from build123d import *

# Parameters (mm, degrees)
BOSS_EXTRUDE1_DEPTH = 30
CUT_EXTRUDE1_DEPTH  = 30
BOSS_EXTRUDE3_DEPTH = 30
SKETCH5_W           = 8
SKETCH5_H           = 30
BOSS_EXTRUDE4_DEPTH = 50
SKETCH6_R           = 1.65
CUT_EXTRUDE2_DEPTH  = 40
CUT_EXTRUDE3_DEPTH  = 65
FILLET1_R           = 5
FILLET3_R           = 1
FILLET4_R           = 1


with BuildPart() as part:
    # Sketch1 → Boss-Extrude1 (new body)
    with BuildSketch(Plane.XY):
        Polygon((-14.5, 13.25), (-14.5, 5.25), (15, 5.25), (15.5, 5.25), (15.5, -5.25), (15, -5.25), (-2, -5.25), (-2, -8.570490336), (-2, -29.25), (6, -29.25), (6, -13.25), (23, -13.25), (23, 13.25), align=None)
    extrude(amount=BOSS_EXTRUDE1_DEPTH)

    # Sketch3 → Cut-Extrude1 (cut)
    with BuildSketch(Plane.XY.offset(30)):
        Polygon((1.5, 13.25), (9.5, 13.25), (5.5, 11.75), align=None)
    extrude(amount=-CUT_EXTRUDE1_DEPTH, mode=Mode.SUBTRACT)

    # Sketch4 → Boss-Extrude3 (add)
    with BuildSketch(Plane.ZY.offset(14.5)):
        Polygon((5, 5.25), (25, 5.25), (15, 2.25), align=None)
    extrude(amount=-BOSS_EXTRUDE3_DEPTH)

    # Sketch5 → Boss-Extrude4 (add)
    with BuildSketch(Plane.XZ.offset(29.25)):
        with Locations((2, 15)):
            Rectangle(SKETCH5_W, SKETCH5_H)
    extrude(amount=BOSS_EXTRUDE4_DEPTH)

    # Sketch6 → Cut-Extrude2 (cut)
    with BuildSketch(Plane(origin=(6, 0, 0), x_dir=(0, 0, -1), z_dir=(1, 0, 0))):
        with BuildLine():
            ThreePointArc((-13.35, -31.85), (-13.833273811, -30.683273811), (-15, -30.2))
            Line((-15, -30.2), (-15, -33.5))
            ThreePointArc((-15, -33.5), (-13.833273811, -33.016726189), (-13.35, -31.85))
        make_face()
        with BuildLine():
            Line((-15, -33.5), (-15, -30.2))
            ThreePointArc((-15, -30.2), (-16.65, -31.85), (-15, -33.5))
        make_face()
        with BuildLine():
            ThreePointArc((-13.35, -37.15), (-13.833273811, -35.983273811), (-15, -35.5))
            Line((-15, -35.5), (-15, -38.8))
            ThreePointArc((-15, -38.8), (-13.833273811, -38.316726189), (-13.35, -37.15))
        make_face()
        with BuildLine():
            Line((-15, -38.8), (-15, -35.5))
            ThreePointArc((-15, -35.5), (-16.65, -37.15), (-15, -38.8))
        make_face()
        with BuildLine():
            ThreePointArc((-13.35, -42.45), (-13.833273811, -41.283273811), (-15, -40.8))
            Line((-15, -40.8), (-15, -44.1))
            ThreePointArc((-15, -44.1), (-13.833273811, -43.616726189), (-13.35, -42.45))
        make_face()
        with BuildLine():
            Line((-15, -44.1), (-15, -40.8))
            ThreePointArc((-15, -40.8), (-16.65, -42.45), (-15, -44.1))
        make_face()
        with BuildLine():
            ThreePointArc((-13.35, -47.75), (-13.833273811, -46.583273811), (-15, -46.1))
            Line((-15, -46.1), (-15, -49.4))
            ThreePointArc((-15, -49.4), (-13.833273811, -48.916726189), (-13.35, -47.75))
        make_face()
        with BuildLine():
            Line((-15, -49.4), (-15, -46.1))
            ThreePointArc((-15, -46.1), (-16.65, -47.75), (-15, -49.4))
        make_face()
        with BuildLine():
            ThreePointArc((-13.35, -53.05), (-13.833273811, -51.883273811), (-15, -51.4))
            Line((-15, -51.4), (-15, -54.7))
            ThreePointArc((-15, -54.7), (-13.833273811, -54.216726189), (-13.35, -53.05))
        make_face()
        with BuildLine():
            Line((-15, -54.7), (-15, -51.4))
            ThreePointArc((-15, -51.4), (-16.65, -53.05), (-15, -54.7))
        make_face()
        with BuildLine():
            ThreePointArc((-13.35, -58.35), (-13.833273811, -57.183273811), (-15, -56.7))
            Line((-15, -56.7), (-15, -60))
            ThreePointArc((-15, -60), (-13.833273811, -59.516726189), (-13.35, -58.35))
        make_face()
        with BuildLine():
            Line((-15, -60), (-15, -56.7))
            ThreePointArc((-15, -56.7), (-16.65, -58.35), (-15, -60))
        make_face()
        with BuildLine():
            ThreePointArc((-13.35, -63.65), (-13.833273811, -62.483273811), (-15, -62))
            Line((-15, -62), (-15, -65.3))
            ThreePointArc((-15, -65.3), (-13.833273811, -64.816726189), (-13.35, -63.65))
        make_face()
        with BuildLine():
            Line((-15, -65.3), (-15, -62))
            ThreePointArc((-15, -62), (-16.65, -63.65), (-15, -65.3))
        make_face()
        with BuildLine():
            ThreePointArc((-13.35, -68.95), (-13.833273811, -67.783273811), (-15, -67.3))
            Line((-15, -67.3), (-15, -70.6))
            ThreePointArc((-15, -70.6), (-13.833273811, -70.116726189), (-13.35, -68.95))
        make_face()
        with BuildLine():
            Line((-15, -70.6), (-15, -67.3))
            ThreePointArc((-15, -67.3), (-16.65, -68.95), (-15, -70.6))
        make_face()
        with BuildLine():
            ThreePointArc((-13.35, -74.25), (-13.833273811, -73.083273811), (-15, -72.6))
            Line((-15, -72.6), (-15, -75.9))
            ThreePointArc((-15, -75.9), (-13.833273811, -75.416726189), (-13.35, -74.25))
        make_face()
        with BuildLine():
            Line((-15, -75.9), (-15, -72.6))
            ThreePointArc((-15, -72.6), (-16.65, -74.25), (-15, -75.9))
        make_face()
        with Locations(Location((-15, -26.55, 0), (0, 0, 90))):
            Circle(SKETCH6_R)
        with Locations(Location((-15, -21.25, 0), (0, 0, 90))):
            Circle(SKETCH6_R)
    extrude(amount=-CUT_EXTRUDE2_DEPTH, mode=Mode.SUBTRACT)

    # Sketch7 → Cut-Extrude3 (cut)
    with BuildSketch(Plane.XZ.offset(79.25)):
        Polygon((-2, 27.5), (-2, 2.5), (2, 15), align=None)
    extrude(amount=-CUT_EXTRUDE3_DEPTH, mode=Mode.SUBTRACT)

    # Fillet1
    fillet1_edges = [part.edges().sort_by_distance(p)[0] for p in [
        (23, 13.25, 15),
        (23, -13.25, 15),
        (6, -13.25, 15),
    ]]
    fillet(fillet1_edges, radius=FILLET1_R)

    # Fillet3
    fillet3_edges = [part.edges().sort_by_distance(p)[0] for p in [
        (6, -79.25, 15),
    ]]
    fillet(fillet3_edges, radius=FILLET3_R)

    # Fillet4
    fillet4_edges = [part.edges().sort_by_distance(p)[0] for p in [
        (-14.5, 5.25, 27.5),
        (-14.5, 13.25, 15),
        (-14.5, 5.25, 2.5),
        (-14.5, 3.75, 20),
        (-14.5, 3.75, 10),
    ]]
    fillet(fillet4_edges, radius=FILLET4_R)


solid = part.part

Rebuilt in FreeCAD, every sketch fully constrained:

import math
import FreeCAD as App
import Part
import Sketcher
from FreeCAD import Vector


def edges_at(feature, points):
    """Names of the edges that pass closest to the given points."""
    edges = feature.Shape.Edges
    near = lambda p: min(range(len(edges)), key=lambda i: edges[i].distToShape(Part.Vertex(*p))[0])
    return sorted({f"Edge{near(p) + 1}" for p in points})


def add_polygon(sketch, points):
    """Adds a closed chain of lines whose ends are joined by coincident constraints."""
    first, n = sketch.GeometryCount, len(points)
    for a, b in zip(points, points[1:] + points[:1]):
        sketch.addGeometry(Part.LineSegment(App.Vector(*a, 0), App.Vector(*b, 0)), False)
    for i in range(n):
        sketch.addConstraint(Sketcher.Constraint("Coincident", first + i, 2, first + (i + 1) % n, 1))

doc = App.newDocument("Part")
body = doc.addObject("PartDesign::Body", "Body")

# Sketch on XY plane
sketch1 = doc.addObject("Sketcher::SketchObject", "Sketch")
body.addObject(sketch1)
sketch1.AttachmentSupport = (doc.XY_Plane, [""])
sketch1.MapMode = "FlatFace"
add_polygon(sketch1, [(-14, 13), (-14, 5), (16, 5), (16, -5), (-2, -5), (-2, -29), (6, -29), (6, -13), (23, -13), (23, 13)])  # lines 0-9
sketch1.addConstraint([
    Sketcher.Constraint("Vertical", 0),
    Sketcher.Constraint("Horizontal", 1),
    Sketcher.Constraint("Vertical", 2),
    Sketcher.Constraint("Horizontal", 3),
    Sketcher.Constraint("Vertical", 4),
    Sketcher.Constraint("Horizontal", 5),
    Sketcher.Constraint("Vertical", 6),
    Sketcher.Constraint("Horizontal", 7),
    Sketcher.Constraint("Vertical", 8),
    Sketcher.Constraint("Horizontal", 9),
    Sketcher.Constraint("Equal", 5, 0),
    Sketcher.Constraint("DistanceX", 1, 1, 1, 2, 30.0),
    Sketcher.Constraint("DistanceX", 5, 1, 5, 2, 8.0),
    Sketcher.Constraint("DistanceX", 7, 1, 7, 2, 17.0),
    Sketcher.Constraint("DistanceY", 4, 2, 4, 1, 24.0),
    Sketcher.Constraint("DistanceY", 6, 1, 6, 2, 16.0),
    Sketcher.Constraint("DistanceX", 3, 2, 3, 1, 17.5),
    Sketcher.Constraint("DistanceY", 2, 2, 2, 1, 10.5),
    Sketcher.Constraint("DistanceX", 3, 2, -1, 1, 2.0),
    Sketcher.Constraint("DistanceY", -1, 1, 0, 2, 5.25),
])
pad1 = doc.addObject("PartDesign::Pad", "Pad")
body.addObject(pad1)
pad1.Profile = sketch1
pad1.Length = 30

# Sketch on XY plane
sketch2 = doc.addObject("Sketcher::SketchObject", "Sketch001")
body.addObject(sketch2)
sketch2.AttachmentSupport = (doc.XY_Plane, [""])
sketch2.MapMode = "FlatFace"
sketch2.AttachmentOffset = App.Placement(Vector(0, 0, 30), App.Rotation())
add_polygon(sketch2, [(9.5, 13.2), (1.5, 13.2), (5.5, 11.8)])  # lines 0-2
sketch2.addConstraint([
    Sketcher.Constraint("Horizontal", 0),
    Sketcher.Constraint("Equal", 1, 2),
    Sketcher.Constraint("DistanceX", 0, 2, 0, 1, 8.0),
    Sketcher.Constraint("DistanceX", -1, 1, 0, 2, 1.5),
    Sketcher.Constraint("DistanceY", 1, 2, 0, 2, 1.5),
    Sketcher.Constraint("DistanceY", -1, 1, 0, 2, 13.25),
])
pocket1 = doc.addObject("PartDesign::Pocket", "Pocket")
body.addObject(pocket1)
pocket1.Profile = sketch2
pocket1.Length = 30

# Sketch on YZ plane
sketch3 = doc.addObject("Sketcher::SketchObject", "Sketch002")
body.addObject(sketch3)
sketch3.AttachmentSupport = (doc.YZ_Plane, [""])
sketch3.MapMode = "FlatFace"
sketch3.AttachmentOffset = App.Placement(Vector(0, 0, -14.5), App.Rotation())
add_polygon(sketch3, [(5, 25), (5, 5), (2, 15)])  # lines 0-2
sketch3.addConstraint([
    Sketcher.Constraint("Vertical", 0),
    Sketcher.Constraint("Equal", 1, 2),
    Sketcher.Constraint("DistanceY", 0, 2, 0, 1, 20.0),
    Sketcher.Constraint("DistanceY", -1, 1, 0, 2, 5.0),
    Sketcher.Constraint("DistanceX", 1, 2, 0, 2, 3.0),
    Sketcher.Constraint("DistanceX", -1, 1, 0, 2, 5.25),
])
pad2 = doc.addObject("PartDesign::Pad", "Pad001")
body.addObject(pad2)
pad2.Profile = sketch3
pad2.Length = 30

# Sketch on XZ plane
sketch4 = doc.addObject("Sketcher::SketchObject", "Sketch003")
body.addObject(sketch4)
sketch4.AttachmentSupport = (doc.XZ_Plane, [""])
sketch4.MapMode = "FlatFace"
sketch4.AttachmentOffset = App.Placement(Vector(0, 0, 29.25), App.Rotation())
add_polygon(sketch4, [(-2, 30), (-2, 0), (6, 0), (6, 30)])  # lines 0-3
sketch4.addConstraint([
    Sketcher.Constraint("Vertical", 0),
    Sketcher.Constraint("Horizontal", 1),
    Sketcher.Constraint("Vertical", 2),
    Sketcher.Constraint("Horizontal", 3),
    Sketcher.Constraint("PointOnObject", 0, 2, -1),
    Sketcher.Constraint("DistanceX", 1, 1, 1, 2, 8.0),
    Sketcher.Constraint("DistanceY", 0, 2, 0, 1, 30.0),
    Sketcher.Constraint("DistanceX", 0, 2, -1, 1, 2.0),
])
pad3 = doc.addObject("PartDesign::Pad", "Pad002")
body.addObject(pad3)
pad3.Profile = sketch4
pad3.Length = 50

# Sketch on YZ plane
sketch5 = doc.addObject("Sketcher::SketchObject", "Sketch004")
body.addObject(sketch5)
sketch5.AttachmentSupport = (doc.YZ_Plane, [""])
sketch5.MapMode = "FlatFace"
sketch5.AttachmentOffset = App.Placement(Vector(0, 0, 6), App.Rotation())
sketch5.addGeometry([
    Part.ArcOfCircle(Part.Circle(Vector(-31.9, 15, 0), Vector(0, 0, 1), 1.6), math.radians(-90), math.radians(0)),  # 0
    Part.ArcOfCircle(Part.Circle(Vector(-31.9, 15, 0), Vector(0, 0, 1), 1.6), math.radians(0), math.radians(180)),  # 1
    Part.ArcOfCircle(Part.Circle(Vector(-31.9, 15, 0), Vector(0, 0, 1), 1.6), math.radians(180), math.radians(270)),  # 2
    Part.ArcOfCircle(Part.Circle(Vector(-37.1, 15, 0), Vector(0, 0, 1), 1.6), math.radians(-90), math.radians(0)),  # 3
    Part.ArcOfCircle(Part.Circle(Vector(-37.1, 15, 0), Vector(0, 0, 1), 1.6), math.radians(0), math.radians(180)),  # 4
    Part.ArcOfCircle(Part.Circle(Vector(-37.1, 15, 0), Vector(0, 0, 1), 1.6), math.radians(180), math.radians(270)),  # 5
    Part.ArcOfCircle(Part.Circle(Vector(-42.5, 15, 0), Vector(0, 0, 1), 1.6), math.radians(-90), math.radians(0)),  # 6
    Part.ArcOfCircle(Part.Circle(Vector(-42.5, 15, 0), Vector(0, 0, 1), 1.6), math.radians(0), math.radians(180)),  # 7
    Part.ArcOfCircle(Part.Circle(Vector(-42.5, 15, 0), Vector(0, 0, 1), 1.6), math.radians(180), math.radians(270)),  # 8
    Part.ArcOfCircle(Part.Circle(Vector(-47.8, 15, 0), Vector(0, 0, 1), 1.6), math.radians(-90), math.radians(0)),  # 9
    Part.ArcOfCircle(Part.Circle(Vector(-47.8, 15, 0), Vector(0, 0, 1), 1.6), math.radians(0), math.radians(180)),  # 10
    Part.ArcOfCircle(Part.Circle(Vector(-47.8, 15, 0), Vector(0, 0, 1), 1.6), math.radians(180), math.radians(270)),  # 11
    Part.ArcOfCircle(Part.Circle(Vector(-53, 15, 0), Vector(0, 0, 1), 1.6), math.radians(-90), math.radians(0)),  # 12
    Part.ArcOfCircle(Part.Circle(Vector(-53, 15, 0), Vector(0, 0, 1), 1.6), math.radians(0), math.radians(180)),  # 13
    Part.ArcOfCircle(Part.Circle(Vector(-53, 15, 0), Vector(0, 0, 1), 1.6), math.radians(180), math.radians(270)),  # 14
    Part.ArcOfCircle(Part.Circle(Vector(-58.4, 15, 0), Vector(0, 0, 1), 1.6), math.radians(-90), math.radians(0)),  # 15
    Part.ArcOfCircle(Part.Circle(Vector(-58.4, 15, 0), Vector(0, 0, 1), 1.6), math.radians(0), math.radians(180)),  # 16
    Part.ArcOfCircle(Part.Circle(Vector(-58.4, 15, 0), Vector(0, 0, 1), 1.6), math.radians(180), math.radians(270)),  # 17
    Part.ArcOfCircle(Part.Circle(Vector(-63.6, 15, 0), Vector(0, 0, 1), 1.6), math.radians(-90), math.radians(0)),  # 18
    Part.ArcOfCircle(Part.Circle(Vector(-63.6, 15, 0), Vector(0, 0, 1), 1.6), math.radians(0), math.radians(180)),  # 19
    Part.ArcOfCircle(Part.Circle(Vector(-63.6, 15, 0), Vector(0, 0, 1), 1.6), math.radians(180), math.radians(270)),  # 20
    Part.ArcOfCircle(Part.Circle(Vector(-69, 15, 0), Vector(0, 0, 1), 1.6), math.radians(-90), math.radians(0)),  # 21
    Part.ArcOfCircle(Part.Circle(Vector(-69, 15, 0), Vector(0, 0, 1), 1.6), math.radians(0), math.radians(180)),  # 22
    Part.ArcOfCircle(Part.Circle(Vector(-69, 15, 0), Vector(0, 0, 1), 1.6), math.radians(180), math.radians(270)),  # 23
    Part.ArcOfCircle(Part.Circle(Vector(-74.2, 15, 0), Vector(0, 0, 1), 1.6), math.radians(-90), math.radians(0)),  # 24
    Part.ArcOfCircle(Part.Circle(Vector(-74.2, 15, 0), Vector(0, 0, 1), 1.6), math.radians(0), math.radians(180)),  # 25
    Part.ArcOfCircle(Part.Circle(Vector(-74.2, 15, 0), Vector(0, 0, 1), 1.6), math.radians(180), math.radians(270)),  # 26
    Part.Circle(Vector(-26.6, 15, 0), Vector(0, 0, 1), 1.6),  # 27
    Part.Circle(Vector(-21.2, 15, 0), Vector(0, 0, 1), 1.6),  # 28
], False)
sketch5.addConstraint([
    Sketcher.Constraint("Tangent", 0, 2, 1, 1),
    Sketcher.Constraint("Tangent", 1, 2, 2, 1),
    Sketcher.Constraint("Tangent", 2, 2, 0, 1),
    Sketcher.Constraint("Tangent", 3, 2, 4, 1),
    Sketcher.Constraint("Tangent", 4, 2, 5, 1),
    Sketcher.Constraint("Tangent", 5, 2, 3, 1),
    Sketcher.Constraint("Tangent", 6, 2, 7, 1),
    Sketcher.Constraint("Tangent", 7, 2, 8, 1),
    Sketcher.Constraint("Tangent", 8, 2, 6, 1),
    Sketcher.Constraint("Tangent", 9, 2, 10, 1),
    Sketcher.Constraint("Tangent", 10, 2, 11, 1),
    Sketcher.Constraint("Tangent", 11, 2, 9, 1),
    Sketcher.Constraint("Tangent", 12, 2, 13, 1),
    Sketcher.Constraint("Tangent", 13, 2, 14, 1),
    Sketcher.Constraint("Tangent", 14, 2, 12, 1),
    Sketcher.Constraint("Tangent", 15, 2, 16, 1),
    Sketcher.Constraint("Tangent", 16, 2, 17, 1),
    Sketcher.Constraint("Tangent", 17, 2, 15, 1),
    Sketcher.Constraint("Tangent", 18, 2, 19, 1),
    Sketcher.Constraint("Tangent", 19, 2, 20, 1),
    Sketcher.Constraint("Tangent", 20, 2, 18, 1),
    Sketcher.Constraint("Tangent", 21, 2, 22, 1),
    Sketcher.Constraint("Tangent", 22, 2, 23, 1),
    Sketcher.Constraint("Tangent", 23, 2, 21, 1),
    Sketcher.Constraint("Tangent", 24, 2, 25, 1),
    Sketcher.Constraint("Tangent", 25, 2, 26, 1),
    Sketcher.Constraint("Tangent", 26, 2, 24, 1),
    Sketcher.Constraint("Equal", 2, 3),
    Sketcher.Constraint("Equal", 5, 6),
    Sketcher.Constraint("Equal", 8, 9),
    Sketcher.Constraint("Equal", 11, 12),
    Sketcher.Constraint("Equal", 14, 15),
    Sketcher.Constraint("Equal", 17, 18),
    Sketcher.Constraint("Equal", 20, 21),
    Sketcher.Constraint("Equal", 23, 24),
    Sketcher.Constraint("Equal", 26, 27),
    Sketcher.Constraint("Equal", 27, 28),
    Sketcher.Constraint("Horizontal", 2, 3, 3, 3),
    Sketcher.Constraint("Horizontal", 5, 3, 6, 3),
    Sketcher.Constraint("Horizontal", 8, 3, 9, 3),
    Sketcher.Constraint("Horizontal", 11, 3, 12, 3),
    Sketcher.Constraint("Horizontal", 14, 3, 15, 3),
    Sketcher.Constraint("Horizontal", 17, 3, 18, 3),
    Sketcher.Constraint("Horizontal", 20, 3, 21, 3),
    Sketcher.Constraint("Horizontal", 23, 3, 24, 3),
    Sketcher.Constraint("Horizontal", 26, 3, 27, 3),
    Sketcher.Constraint("Horizontal", 27, 3, 28, 3),
    Sketcher.Constraint("Horizontal", 28, 3, 0, 2),
    Sketcher.Constraint("Horizontal", 0, 2, 1, 2),
    Sketcher.Constraint("Horizontal", 1, 2, 3, 2),
    Sketcher.Constraint("Horizontal", 3, 2, 4, 2),
    Sketcher.Constraint("Horizontal", 4, 2, 6, 2),
    Sketcher.Constraint("Horizontal", 6, 2, 7, 2),
    Sketcher.Constraint("Horizontal", 7, 2, 9, 2),
    Sketcher.Constraint("Horizontal", 9, 2, 10, 2),
    Sketcher.Constraint("Horizontal", 10, 2, 12, 2),
    Sketcher.Constraint("Horizontal", 12, 2, 13, 2),
    Sketcher.Constraint("Horizontal", 13, 2, 15, 2),
    Sketcher.Constraint("Horizontal", 15, 2, 16, 2),
    Sketcher.Constraint("Horizontal", 16, 2, 18, 2),
    Sketcher.Constraint("Horizontal", 18, 2, 19, 2),
    Sketcher.Constraint("Horizontal", 19, 2, 21, 2),
    Sketcher.Constraint("Horizontal", 21, 2, 22, 2),
    Sketcher.Constraint("Horizontal", 22, 2, 24, 2),
    Sketcher.Constraint("Horizontal", 24, 2, 25, 2),
    Sketcher.Constraint("Vertical", 1, 3, 2, 2),
    Sketcher.Constraint("Vertical", 4, 3, 5, 2),
    Sketcher.Constraint("Vertical", 7, 3, 8, 2),
    Sketcher.Constraint("Vertical", 10, 3, 11, 2),
    Sketcher.Constraint("Vertical", 13, 3, 14, 2),
    Sketcher.Constraint("Vertical", 16, 3, 17, 2),
    Sketcher.Constraint("Vertical", 19, 3, 20, 2),
    Sketcher.Constraint("Vertical", 22, 3, 23, 2),
    Sketcher.Constraint("Vertical", 25, 3, 26, 2),
    Sketcher.Constraint("Diameter", 27, 3.3),
    Sketcher.Constraint("DistanceY", -1, 1, 0, 3, 15.0),
    Sketcher.Constraint("DistanceX", 16, 2, -1, 1, 60.0),
    Sketcher.Constraint("DistanceX", 18, 2, -1, 1, 62.0),
    Sketcher.Constraint("DistanceX", 3, 2, 1, 2, 2.0),
    Sketcher.Constraint("DistanceX", 6, 2, 4, 2, 2.0),
    Sketcher.Constraint("DistanceX", 9, 2, 7, 2, 2.0),
    Sketcher.Constraint("DistanceX", 12, 2, 10, 2, 2.0),
    Sketcher.Constraint("DistanceX", 15, 2, 13, 2, 2.0),
    Sketcher.Constraint("DistanceX", 21, 2, 19, 2, 2.0),
    Sketcher.Constraint("DistanceX", 24, 2, 22, 2, 2.0),
    Sketcher.Constraint("DistanceX", 0, 3, 27, 3, 5.3),
    Sketcher.Constraint("DistanceX", 27, 3, 28, 3, 5.3),
])
pocket2 = doc.addObject("PartDesign::Pocket", "Pocket001")
body.addObject(pocket2)
pocket2.Profile = sketch5
pocket2.Length = 40

# Sketch on XZ plane
sketch6 = doc.addObject("Sketcher::SketchObject", "Sketch005")
body.addObject(sketch6)
sketch6.AttachmentSupport = (doc.XZ_Plane, [""])
sketch6.MapMode = "FlatFace"
sketch6.AttachmentOffset = App.Placement(Vector(0, 0, 79.25), App.Rotation())
add_polygon(sketch6, [(-2, 28), (-2, 2), (2, 15)])  # lines 0-2
sketch6.addConstraint([
    Sketcher.Constraint("Vertical", 0),
    Sketcher.Constraint("Equal", 1, 2),
    Sketcher.Constraint("DistanceY", 0, 2, 0, 1, 25.0),
    Sketcher.Constraint("DistanceX", 0, 2, -1, 1, 2.0),
    Sketcher.Constraint("DistanceX", -1, 1, 1, 2, 2.0),
    Sketcher.Constraint("DistanceY", -1, 1, 1, 2, 15.0),
])
pocket3 = doc.addObject("PartDesign::Pocket", "Pocket002")
body.addObject(pocket3)
pocket3.Profile = sketch6
pocket3.Length = 65
doc.recompute()

fillet = doc.addObject("PartDesign::Fillet", "Fillet")
body.addObject(fillet)
fillet.Base = (pocket3, edges_at(pocket3, [(23, 13.25, 15), (23, -13.25, 15), (6, -13.25, 15)]))
fillet.Radius = 5
doc.recompute()

fillet2 = doc.addObject("PartDesign::Fillet", "Fillet001")
body.addObject(fillet2)
fillet2.Base = (fillet, edges_at(fillet, [(6, -79.25, 15)]))
fillet2.Radius = 1
doc.recompute()

fillet3 = doc.addObject("PartDesign::Fillet", "Fillet002")
body.addObject(fillet3)
fillet3.Base = (fillet2, edges_at(fillet2, [
    (-14.5, 5.25, 27.5),
    (-14.5, 13.25, 15),
    (-14.5, 5.25, 2.5),
    (-14.5, 3.75, 20),
    (-14.5, 3.75, 10),
]))
fillet3.Radius = 1

doc.recompute()
